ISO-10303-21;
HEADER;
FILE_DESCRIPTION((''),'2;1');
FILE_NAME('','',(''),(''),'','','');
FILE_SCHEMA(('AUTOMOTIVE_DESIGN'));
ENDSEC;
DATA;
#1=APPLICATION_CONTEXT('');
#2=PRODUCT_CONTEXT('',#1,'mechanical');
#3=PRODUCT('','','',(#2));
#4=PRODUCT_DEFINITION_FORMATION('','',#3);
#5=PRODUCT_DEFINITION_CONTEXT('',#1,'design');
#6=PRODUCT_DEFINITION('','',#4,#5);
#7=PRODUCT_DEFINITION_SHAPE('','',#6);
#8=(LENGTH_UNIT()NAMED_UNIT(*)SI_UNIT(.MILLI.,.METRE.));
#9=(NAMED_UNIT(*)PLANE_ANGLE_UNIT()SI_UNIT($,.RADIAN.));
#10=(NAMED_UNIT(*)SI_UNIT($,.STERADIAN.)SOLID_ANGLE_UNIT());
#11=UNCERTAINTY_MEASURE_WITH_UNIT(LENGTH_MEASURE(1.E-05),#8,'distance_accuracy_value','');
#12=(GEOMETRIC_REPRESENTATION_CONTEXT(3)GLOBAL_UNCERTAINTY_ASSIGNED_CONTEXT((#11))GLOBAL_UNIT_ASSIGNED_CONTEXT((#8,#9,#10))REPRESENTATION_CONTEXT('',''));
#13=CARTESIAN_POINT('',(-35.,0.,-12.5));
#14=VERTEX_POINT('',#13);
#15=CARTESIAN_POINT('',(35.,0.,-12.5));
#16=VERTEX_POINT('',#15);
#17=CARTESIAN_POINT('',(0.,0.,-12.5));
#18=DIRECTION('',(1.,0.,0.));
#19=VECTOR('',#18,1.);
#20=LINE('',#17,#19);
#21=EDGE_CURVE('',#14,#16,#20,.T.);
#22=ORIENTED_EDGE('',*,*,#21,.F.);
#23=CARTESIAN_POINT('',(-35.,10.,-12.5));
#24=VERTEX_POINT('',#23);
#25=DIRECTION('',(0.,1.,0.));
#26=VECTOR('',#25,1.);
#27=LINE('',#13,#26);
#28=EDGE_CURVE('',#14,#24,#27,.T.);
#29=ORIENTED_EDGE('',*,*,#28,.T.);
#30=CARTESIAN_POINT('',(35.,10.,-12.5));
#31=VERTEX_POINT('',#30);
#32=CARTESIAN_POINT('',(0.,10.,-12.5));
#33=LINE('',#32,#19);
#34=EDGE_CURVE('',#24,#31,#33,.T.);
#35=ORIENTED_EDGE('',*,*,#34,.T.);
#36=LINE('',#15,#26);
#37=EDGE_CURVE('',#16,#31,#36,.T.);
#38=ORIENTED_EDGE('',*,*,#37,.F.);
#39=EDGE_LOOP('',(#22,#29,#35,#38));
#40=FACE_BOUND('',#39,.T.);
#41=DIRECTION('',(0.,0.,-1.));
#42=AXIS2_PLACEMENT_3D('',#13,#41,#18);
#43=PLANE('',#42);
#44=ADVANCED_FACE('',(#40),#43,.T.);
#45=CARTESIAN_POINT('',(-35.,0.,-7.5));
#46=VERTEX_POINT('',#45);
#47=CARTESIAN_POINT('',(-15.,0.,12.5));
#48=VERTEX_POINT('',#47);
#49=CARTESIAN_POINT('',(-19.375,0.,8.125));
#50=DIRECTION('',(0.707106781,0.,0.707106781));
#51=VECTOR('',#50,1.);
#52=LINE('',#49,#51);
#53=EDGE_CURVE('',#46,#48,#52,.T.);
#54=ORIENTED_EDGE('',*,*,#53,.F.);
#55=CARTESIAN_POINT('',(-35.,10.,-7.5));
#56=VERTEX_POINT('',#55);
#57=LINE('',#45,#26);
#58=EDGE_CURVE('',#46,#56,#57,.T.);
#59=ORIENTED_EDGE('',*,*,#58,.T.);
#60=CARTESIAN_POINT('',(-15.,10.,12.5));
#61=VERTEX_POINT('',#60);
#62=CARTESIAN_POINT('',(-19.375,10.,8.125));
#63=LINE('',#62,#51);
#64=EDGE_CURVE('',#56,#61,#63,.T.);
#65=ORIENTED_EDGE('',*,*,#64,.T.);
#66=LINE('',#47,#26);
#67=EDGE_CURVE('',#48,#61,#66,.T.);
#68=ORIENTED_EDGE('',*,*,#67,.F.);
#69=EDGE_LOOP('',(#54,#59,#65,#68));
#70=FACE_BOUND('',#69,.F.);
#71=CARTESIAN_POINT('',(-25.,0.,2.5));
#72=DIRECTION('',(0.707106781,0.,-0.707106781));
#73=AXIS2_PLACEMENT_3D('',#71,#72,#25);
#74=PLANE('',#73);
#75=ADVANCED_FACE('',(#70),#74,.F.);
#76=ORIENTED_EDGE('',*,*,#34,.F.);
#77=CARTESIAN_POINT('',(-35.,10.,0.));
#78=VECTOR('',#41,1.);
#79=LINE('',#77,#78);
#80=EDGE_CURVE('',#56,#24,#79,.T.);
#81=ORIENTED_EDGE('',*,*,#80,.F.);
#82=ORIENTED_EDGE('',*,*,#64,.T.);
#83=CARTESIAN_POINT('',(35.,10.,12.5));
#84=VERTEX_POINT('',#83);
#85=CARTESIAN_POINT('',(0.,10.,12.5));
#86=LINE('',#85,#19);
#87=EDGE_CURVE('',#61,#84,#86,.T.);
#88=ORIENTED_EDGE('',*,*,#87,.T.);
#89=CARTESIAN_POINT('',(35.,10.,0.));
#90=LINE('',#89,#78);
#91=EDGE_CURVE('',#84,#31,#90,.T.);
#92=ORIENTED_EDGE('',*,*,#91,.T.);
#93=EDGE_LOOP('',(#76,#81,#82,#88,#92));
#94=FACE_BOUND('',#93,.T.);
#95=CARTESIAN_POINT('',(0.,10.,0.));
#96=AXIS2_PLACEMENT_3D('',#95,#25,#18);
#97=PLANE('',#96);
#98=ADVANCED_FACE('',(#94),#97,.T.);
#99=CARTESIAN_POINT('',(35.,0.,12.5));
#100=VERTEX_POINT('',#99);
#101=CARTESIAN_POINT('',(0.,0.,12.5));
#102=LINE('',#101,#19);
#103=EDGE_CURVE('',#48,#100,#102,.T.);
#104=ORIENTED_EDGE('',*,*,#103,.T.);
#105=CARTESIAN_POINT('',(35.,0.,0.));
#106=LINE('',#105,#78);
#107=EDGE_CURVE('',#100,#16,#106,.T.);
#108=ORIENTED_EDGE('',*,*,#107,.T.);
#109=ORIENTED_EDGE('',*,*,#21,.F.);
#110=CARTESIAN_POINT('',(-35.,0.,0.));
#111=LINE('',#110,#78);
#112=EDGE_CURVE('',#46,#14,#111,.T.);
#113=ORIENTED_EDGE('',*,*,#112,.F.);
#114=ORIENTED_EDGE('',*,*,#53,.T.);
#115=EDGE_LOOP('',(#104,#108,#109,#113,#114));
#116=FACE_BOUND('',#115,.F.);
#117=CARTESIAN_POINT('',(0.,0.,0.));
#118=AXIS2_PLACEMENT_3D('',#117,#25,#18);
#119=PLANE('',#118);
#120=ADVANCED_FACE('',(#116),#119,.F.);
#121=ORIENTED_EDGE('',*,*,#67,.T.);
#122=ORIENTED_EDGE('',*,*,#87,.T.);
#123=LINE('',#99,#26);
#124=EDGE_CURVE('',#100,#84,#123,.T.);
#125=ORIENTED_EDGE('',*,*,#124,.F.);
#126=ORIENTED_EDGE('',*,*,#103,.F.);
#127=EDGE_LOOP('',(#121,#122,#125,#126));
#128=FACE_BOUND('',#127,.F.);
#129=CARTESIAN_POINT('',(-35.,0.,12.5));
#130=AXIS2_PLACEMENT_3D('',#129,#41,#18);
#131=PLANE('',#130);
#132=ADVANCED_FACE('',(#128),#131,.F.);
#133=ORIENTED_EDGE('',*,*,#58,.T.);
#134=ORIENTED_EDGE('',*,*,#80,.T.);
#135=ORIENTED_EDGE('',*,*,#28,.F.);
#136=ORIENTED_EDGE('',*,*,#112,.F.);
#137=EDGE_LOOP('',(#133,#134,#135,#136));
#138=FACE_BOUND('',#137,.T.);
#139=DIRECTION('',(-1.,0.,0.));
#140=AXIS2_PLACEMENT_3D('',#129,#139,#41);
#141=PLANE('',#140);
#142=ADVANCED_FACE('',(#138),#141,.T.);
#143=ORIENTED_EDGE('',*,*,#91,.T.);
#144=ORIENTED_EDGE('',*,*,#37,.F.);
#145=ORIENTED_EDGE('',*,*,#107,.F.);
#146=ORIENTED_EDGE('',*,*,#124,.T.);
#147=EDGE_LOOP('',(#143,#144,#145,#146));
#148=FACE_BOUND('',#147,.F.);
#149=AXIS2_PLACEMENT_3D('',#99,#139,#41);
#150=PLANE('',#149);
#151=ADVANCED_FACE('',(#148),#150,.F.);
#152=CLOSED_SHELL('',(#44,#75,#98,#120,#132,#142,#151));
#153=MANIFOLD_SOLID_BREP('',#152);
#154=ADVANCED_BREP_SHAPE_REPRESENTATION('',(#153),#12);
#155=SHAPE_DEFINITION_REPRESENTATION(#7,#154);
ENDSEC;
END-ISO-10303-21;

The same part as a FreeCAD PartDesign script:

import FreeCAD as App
import Part
import Sketcher

V = App.Vector
Q = App.Units.Quantity


def edges_at(feature, points):
    """Names of the edges that pass closest to the given points."""
    edges = feature.Shape.Edges
    near = lambda p: min(range(len(edges)), key=lambda i: edges[i].distToShape(Part.Vertex(*p))[0])
    return sorted({f"Edge{near(p) + 1}" for p in points})


def add_polygon(sketch, points):
    """Adds a closed chain of lines whose ends are joined by coincident constraints."""
    first, n = sketch.GeometryCount, len(points)
    for a, b in zip(points, points[1:] + points[:1]):
        sketch.addGeometry(Part.LineSegment(App.Vector(*a, 0), App.Vector(*b, 0)), False)
    for i in range(n):
        sketch.addConstraint(Sketcher.Constraint("Coincident", first + i, 2, first + (i + 1) % n, 1))

doc = App.newDocument("Part")
body = doc.addObject("PartDesign::Body", "Body")

sketch1 = body.newObject("Sketcher::SketchObject", "Sketch")
sketch1.AttachmentSupport = (doc.getObject("XZ_Plane"), [""])
sketch1.MapMode = "FlatFace"
add_polygon(sketch1, [(-35, -12), (-35, 12), (35, 12), (35, -12)])
sketch1.addConstraint([
    Sketcher.Constraint("Vertical", 0),
    Sketcher.Constraint("Horizontal", 1),
    Sketcher.Constraint("Vertical", 2),
    Sketcher.Constraint("Horizontal", 3),
    Sketcher.Constraint("Symmetric", 0, 2, 2, 2, -1, 1),
    Sketcher.Constraint("DistanceX", 1, 1, 1, 2, Q("70 mm")),
    Sketcher.Constraint("DistanceY", 0, 1, 0, 2, Q("25 mm")),
])
pad1 = body.newObject("PartDesign::Pad", "Pad")
pad1.Profile = sketch1
pad1.Length = 10
pad1.Reversed = True
doc.recompute()

chamfer = body.newObject("PartDesign::Chamfer", "Chamfer")
chamfer.Base = (pad1, edges_at(pad1, [(-35, 5, 12.5)]))
chamfer.Size = 20

doc.recompute()
